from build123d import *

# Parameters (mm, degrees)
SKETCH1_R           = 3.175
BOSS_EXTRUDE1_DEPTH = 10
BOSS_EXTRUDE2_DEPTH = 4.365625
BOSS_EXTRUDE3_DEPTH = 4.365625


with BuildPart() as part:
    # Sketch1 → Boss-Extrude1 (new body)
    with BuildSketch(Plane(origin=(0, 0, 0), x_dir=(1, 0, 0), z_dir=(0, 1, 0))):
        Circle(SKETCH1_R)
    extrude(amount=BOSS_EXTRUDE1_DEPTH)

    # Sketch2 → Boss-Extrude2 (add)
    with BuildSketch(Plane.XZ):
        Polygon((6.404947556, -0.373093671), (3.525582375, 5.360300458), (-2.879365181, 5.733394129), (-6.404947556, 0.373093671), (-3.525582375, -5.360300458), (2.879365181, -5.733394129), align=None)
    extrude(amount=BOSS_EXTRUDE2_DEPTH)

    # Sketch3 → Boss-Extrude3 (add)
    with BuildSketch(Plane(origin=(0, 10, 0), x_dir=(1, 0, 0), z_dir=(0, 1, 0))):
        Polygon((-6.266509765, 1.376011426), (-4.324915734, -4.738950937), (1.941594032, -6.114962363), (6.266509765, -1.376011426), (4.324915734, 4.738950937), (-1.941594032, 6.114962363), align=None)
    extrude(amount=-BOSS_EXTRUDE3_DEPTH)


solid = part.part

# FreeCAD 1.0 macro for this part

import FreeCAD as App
import Part
import Sketcher
from FreeCAD import Vector
Q = App.Units.Quantity

doc = App.newDocument("Part")
params = doc.addObject("Spreadsheet::Sheet", "Params")
for row, (alias, value) in enumerate([
    ("sketch1_diameter", "0.25 in"),
    ("pad1_length", "10 mm"),
    ("pad2_length", "0.171875 in"),
    ("pad3_length", "0.171875 in"),
], start=1):
    params.set(f"A{row}", alias)
    params.set(f"B{row}", "=" + value)
    params.setAlias(f"B{row}", alias)

body = doc.addObject("PartDesign::Body", "Body")

sketch1 = doc.addObject("Sketcher::SketchObject", "Sketch")
body.addObject(sketch1)
sketch1.AttachmentSupport = (doc.XZ_Plane, [""])
sketch1.MapMode = "FlatFace"
sketch1.addGeometry(Part.Circle(Vector(0, 0, 0), Vector(0, 0, 1), 3.2), False)
sketch1.addConstraint([
    Sketcher.Constraint("Coincident", 0, 3, -1, 1),
    Sketcher.Constraint("Diameter", 0, Q("0.25 in")),
])
sketch1.setExpression("Constraints[1]", "Params.sketch1_diameter")
pad1 = doc.addObject("PartDesign::Pad", "Pad")
body.addObject(pad1)
pad1.Profile = sketch1
pad1.setExpression("Length", "Params.pad1_length")
pad1.Reversed = True

sketch2 = doc.addObject("Sketcher::SketchObject", "Sketch001")
body.addObject(sketch2)
sketch2.AttachmentSupport = (doc.XZ_Plane, [""])
sketch2.MapMode = "FlatFace"
sketch2.addGeometry([
    Part.LineSegment(Vector(6, 0, 0), Vector(4, 5, 0)),
    Part.LineSegment(Vector(4, 5, 0), Vector(-3, 6, 0)),
    Part.LineSegment(Vector(-3, 6, 0), Vector(-6, 0, 0)),
    Part.LineSegment(Vector(-6, 0, 0), Vector(-4, -5, 0)),
    Part.LineSegment(Vector(-4, -5, 0), Vector(3, -6, 0)),
    Part.LineSegment(Vector(3, -6, 0), Vector(6, 0, 0)),
], False)
sketch2.addConstraint([
    Sketcher.Constraint("Coincident", 0, 2, 1, 1),
    Sketcher.Constraint("Coincident", 1, 2, 2, 1),
    Sketcher.Constraint("Coincident", 2, 2, 3, 1),
    Sketcher.Constraint("Coincident", 3, 2, 4, 1),
    Sketcher.Constraint("Coincident", 4, 2, 5, 1),
    Sketcher.Constraint("Coincident", 5, 2, 0, 1),
    Sketcher.Constraint("Symmetric", 0, 2, 3, 2, -1, 1),
    Sketcher.Constraint("Symmetric", 1, 2, 4, 2, -1, 1),
    Sketcher.Constraint("Symmetric", 2, 2, 5, 2, -1, 1),
    Sketcher.Constraint("Equal", 0, 1),
    Sketcher.Constraint("Equal", 1, 2),
    Sketcher.Constraint("DistanceY", -1, 1, 0, 2, Q("5.3603 mm")),
    Sketcher.Constraint("DistanceY", 2, 2, 1, 2, Q("5.3603 mm")),
    Sketcher.Constraint("DistanceX", 2, 2, 0, 2, Q("9.93053 mm")),
    Sketcher.Constraint("DistanceX", 1, 2, 4, 2, Q("5.75873 mm")),
])
pad2 = doc.addObject("PartDesign::Pad", "Pad001")
body.addObject(pad2)
pad2.Profile = sketch2
pad2.setExpression("Length", "Params.pad2_length")

sketch3 = doc.addObject("Sketcher::SketchObject", "Sketch002")
body.addObject(sketch3)
sketch3.AttachmentSupport = (doc.XZ_Plane, [""])
sketch3.MapMode = "FlatFace"
sketch3.AttachmentOffset = App.Placement(Vector(0, 0, -10), App.Rotation())
sketch3.addGeometry([
    Part.LineSegment(Vector(-6.26651, -1.376011, 0), Vector(-4.324916, 4.738951, 0)),
    Part.LineSegment(Vector(-4.324916, 4.738951, 0), Vector(1.941594, 6.114962, 0)),
    Part.LineSegment(Vector(1.941594, 6.114962, 0), Vector(6.26651, 1.376011, 0)),
    Part.LineSegment(Vector(6.26651, 1.376011, 0), Vector(4.324916, -4.738951, 0)),
    Part.LineSegment(Vector(4.324916, -4.738951, 0), Vector(-1.941594, -6.114962, 0)),
    Part.LineSegment(Vector(-1.941594, -6.114962, 0), Vector(-6.26651, -1.376011, 0)),
], False)
sketch3.addConstraint([
    Sketcher.Constraint("Coincident", 0, 2, 1, 1),
    Sketcher.Constraint("Coincident", 1, 2, 2, 1),
    Sketcher.Constraint("Coincident", 2, 2, 3, 1),
    Sketcher.Constraint("Coincident", 3, 2, 4, 1),
    Sketcher.Constraint("Coincident", 4, 2, 5, 1),
    Sketcher.Constraint("Coincident", 5, 2, 0, 1),
    Sketcher.Constraint("DistanceY", 3, 2, 0, 2, Q("9.477902 mm")),
    Sketcher.Constraint("DistanceY", -1, 1, 0, 2, Q("4.738951 mm")),
    Sketcher.Constraint("DistanceX", -1, 1, 2, 2, Q("6.26651 mm")),
    Sketcher.Constraint("DistanceY", -1, 1, 2, 2, Q("1.376011 mm")),
    Sketcher.Constraint("DistanceX", 5, 2, -1, 1, Q("6.26651 mm")),
    Sketcher.Constraint("DistanceY", 5, 2, -1, 1, Q("1.376011 mm")),
    Sketcher.Constraint("DistanceX", 0, 2, 1, 2, Q("6.26651 mm")),
    Sketcher.Constraint("DistanceY", 0, 2, 1, 2, Q("1.376011 mm")),
    Sketcher.Constraint("DistanceX", 1, 2, 3, 2, Q("2.383322 mm")),
    Sketcher.Constraint("DistanceX", 4, 2, 3, 2, Q("6.26651 mm")),
    Sketcher.Constraint("DistanceY", 4, 2, 3, 2, Q("1.376011 mm")),
    Sketcher.Constraint("Distance", 0, Q("6.415805 mm")),
])
pad3 = doc.addObject("PartDesign::Pad", "Pad002")
body.addObject(pad3)
pad3.Profile = sketch3
pad3.setExpression("Length", "Params.pad3_length")

doc.recompute()
